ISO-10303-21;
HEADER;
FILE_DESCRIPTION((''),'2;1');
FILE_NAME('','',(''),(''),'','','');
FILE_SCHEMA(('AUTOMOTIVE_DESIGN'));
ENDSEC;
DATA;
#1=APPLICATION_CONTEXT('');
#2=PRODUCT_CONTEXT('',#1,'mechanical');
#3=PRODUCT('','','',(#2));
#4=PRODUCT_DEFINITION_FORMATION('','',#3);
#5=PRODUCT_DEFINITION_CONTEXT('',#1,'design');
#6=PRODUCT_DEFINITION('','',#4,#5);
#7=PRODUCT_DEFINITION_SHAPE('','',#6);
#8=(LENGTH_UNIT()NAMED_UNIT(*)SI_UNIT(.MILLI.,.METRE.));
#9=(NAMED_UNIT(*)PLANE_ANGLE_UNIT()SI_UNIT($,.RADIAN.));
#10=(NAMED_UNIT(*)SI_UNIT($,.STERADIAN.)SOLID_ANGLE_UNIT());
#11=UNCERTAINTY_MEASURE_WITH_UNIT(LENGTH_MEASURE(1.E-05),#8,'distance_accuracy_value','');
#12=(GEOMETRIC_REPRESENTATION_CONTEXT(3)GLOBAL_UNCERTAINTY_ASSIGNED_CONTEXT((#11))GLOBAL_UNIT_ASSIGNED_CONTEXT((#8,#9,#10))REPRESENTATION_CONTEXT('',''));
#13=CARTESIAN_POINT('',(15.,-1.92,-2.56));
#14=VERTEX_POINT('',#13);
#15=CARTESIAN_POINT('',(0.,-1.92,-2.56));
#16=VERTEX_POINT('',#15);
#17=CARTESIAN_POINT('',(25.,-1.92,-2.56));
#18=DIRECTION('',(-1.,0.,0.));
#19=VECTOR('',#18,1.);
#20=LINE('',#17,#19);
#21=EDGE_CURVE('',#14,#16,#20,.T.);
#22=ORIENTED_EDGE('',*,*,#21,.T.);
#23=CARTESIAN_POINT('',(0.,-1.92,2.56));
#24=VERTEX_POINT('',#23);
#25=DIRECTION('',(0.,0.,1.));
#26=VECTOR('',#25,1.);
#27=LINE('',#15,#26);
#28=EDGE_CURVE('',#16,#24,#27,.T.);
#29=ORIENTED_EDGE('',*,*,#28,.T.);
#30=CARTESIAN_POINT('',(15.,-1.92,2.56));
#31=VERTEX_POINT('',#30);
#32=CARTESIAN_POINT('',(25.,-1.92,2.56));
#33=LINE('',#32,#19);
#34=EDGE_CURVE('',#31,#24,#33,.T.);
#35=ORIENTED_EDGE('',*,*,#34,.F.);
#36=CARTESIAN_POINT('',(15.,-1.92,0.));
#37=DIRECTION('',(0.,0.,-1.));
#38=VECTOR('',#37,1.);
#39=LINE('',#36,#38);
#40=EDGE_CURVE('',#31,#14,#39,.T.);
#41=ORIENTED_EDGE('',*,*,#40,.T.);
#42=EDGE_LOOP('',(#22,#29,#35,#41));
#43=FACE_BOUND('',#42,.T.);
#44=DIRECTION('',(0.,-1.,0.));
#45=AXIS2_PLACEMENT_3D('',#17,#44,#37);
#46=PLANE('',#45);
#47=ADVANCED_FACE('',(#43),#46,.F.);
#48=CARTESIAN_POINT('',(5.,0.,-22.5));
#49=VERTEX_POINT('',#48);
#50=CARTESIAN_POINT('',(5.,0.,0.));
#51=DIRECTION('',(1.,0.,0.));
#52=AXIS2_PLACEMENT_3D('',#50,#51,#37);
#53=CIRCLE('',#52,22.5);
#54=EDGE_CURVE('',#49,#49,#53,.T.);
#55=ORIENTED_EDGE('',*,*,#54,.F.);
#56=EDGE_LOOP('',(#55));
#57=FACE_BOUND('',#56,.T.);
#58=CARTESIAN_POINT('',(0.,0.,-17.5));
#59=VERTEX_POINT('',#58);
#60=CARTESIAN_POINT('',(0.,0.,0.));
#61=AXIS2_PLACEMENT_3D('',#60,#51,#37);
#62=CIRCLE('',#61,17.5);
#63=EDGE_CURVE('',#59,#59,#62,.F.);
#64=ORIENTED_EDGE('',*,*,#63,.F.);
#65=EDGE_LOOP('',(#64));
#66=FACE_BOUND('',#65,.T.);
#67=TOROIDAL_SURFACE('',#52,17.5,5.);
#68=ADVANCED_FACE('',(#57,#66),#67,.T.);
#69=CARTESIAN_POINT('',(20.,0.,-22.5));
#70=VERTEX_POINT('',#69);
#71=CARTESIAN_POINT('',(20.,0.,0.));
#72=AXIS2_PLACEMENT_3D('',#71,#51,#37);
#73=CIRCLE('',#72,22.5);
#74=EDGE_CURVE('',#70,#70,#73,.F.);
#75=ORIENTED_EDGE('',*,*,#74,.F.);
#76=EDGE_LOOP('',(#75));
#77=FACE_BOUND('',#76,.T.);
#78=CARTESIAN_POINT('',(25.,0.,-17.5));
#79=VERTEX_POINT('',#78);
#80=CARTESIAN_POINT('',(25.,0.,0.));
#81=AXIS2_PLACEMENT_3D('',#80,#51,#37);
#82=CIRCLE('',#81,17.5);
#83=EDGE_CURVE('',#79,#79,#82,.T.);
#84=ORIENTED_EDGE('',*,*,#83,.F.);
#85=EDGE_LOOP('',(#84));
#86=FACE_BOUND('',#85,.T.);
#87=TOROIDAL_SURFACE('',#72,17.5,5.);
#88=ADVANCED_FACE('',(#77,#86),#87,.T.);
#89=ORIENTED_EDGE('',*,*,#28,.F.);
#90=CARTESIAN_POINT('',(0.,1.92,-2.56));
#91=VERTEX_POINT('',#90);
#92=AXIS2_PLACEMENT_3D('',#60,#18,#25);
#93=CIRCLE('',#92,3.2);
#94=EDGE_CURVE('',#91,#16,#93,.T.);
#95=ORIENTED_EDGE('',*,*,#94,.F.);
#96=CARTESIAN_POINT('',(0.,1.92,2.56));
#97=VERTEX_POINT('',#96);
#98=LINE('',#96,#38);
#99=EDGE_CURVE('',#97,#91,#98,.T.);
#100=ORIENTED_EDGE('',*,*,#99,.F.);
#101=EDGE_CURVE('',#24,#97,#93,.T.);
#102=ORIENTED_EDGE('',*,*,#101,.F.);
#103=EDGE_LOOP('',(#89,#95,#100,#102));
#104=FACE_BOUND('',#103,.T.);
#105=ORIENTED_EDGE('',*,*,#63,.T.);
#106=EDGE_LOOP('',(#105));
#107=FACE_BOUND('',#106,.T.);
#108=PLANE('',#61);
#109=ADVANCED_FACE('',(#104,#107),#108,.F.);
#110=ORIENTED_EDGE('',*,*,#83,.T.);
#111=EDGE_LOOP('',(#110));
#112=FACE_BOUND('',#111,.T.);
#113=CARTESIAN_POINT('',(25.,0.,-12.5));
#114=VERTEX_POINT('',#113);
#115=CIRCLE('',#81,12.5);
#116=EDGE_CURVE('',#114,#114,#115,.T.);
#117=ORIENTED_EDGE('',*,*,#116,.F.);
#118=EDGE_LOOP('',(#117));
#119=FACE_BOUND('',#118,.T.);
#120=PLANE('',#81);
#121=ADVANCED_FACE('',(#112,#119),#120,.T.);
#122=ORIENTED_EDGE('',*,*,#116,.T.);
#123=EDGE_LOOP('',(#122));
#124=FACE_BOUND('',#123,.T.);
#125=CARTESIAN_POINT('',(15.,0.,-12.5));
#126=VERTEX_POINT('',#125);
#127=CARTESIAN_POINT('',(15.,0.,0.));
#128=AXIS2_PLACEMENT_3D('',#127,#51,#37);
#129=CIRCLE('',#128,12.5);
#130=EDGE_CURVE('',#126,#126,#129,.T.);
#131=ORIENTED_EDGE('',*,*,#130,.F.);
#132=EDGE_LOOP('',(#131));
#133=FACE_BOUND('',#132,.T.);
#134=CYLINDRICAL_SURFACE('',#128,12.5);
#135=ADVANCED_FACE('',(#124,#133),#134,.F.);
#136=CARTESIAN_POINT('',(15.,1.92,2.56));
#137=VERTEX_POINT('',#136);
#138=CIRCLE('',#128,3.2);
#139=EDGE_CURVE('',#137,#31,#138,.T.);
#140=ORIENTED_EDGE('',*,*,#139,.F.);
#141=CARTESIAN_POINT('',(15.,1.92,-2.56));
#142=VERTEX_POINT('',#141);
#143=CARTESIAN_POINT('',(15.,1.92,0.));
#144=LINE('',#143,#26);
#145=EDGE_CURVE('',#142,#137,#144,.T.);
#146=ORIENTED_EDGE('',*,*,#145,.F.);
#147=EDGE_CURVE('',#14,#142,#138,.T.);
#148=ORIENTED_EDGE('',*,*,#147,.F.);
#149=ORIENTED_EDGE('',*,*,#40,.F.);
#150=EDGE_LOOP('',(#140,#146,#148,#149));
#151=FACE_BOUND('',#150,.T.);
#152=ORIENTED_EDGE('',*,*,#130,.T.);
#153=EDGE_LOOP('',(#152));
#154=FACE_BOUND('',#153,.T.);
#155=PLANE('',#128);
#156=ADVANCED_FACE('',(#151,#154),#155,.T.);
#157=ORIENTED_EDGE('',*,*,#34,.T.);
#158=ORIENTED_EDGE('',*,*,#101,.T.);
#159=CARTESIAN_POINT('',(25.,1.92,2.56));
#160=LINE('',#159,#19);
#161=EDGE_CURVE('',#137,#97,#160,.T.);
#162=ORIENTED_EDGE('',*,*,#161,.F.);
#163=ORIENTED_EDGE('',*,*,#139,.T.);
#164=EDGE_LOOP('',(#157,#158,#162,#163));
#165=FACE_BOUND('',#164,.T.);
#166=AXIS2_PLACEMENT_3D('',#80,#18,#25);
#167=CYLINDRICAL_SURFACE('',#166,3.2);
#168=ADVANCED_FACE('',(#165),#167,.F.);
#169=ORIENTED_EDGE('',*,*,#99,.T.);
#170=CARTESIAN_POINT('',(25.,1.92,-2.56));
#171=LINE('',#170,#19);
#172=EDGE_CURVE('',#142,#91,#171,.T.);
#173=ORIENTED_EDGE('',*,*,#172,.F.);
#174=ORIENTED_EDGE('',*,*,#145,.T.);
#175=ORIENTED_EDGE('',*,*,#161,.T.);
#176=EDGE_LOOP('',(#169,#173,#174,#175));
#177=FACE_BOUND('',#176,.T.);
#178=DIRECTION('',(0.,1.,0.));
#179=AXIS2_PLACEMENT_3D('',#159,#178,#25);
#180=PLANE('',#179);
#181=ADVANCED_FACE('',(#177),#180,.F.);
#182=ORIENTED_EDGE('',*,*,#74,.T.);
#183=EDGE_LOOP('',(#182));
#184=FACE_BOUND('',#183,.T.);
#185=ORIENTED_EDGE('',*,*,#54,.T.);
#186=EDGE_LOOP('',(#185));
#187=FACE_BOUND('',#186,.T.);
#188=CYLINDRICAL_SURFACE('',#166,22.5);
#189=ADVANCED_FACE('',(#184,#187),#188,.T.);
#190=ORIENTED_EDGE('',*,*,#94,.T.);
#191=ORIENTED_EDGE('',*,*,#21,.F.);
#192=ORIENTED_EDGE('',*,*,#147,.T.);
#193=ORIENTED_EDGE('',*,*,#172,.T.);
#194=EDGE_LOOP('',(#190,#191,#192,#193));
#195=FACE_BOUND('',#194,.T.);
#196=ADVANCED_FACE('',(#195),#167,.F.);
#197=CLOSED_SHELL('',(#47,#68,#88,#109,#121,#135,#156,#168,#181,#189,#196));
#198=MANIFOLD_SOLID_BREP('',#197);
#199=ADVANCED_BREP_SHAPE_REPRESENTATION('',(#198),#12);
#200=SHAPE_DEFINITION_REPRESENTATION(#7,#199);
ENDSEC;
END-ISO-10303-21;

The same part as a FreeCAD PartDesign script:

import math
import FreeCAD as App
import Part
import Sketcher
Q = App.Units.Quantity


def edges_at(feature, points):
    """Names of the edges that pass closest to the given points."""
    edges = feature.Shape.Edges
    near = lambda p: min(range(len(edges)), key=lambda i: edges[i].distToShape(Part.Vertex(*p))[0])
    return sorted({f"Edge{near(p) + 1}" for p in points})

doc = App.newDocument("Part")
params = doc.addObject("Spreadsheet::Sheet", "Params")
for row, (alias, value) in enumerate([
    ("sketch1_diameter", "45 mm"),
    ("pad1_length", "25 mm"),
    ("sketch2_diameter", "25 mm"),
    ("pocket1_length", "10 mm"),
    ("fillet_radius", "5 mm"),
    ("sketch3_diameter", "3 mm"),
    ("sketch4_radius", "3.2 mm"),
    ("sketch4_height", "5.12 mm"),
], start=1):
    params.set(f"A{row}", alias)
    params.set(f"B{row}", "=" + value)
    params.setAlias(f"B{row}", alias)

body = doc.addObject("PartDesign::Body", "Body")

sketch1 = body.newObject("Sketcher::SketchObject", "Sketch")
sketch1.AttachmentSupport = (doc.getObject("YZ_Plane"), [""])
sketch1.MapMode = "FlatFace"
sketch1.addGeometry(Part.Circle(App.Vector(0, 0, 0), App.Vector(0, 0, 1), 22), False)
sketch1.addConstraint([
    Sketcher.Constraint("Coincident", 0, 3, -1, 1),
    Sketcher.Constraint("Diameter", 0, Q("45 mm")),
])
sketch1.setExpression("Constraints[1]", "Params.sketch1_diameter")
pad1 = body.newObject("PartDesign::Pad", "Pad")
pad1.Profile = sketch1
pad1.setExpression("Length", "Params.pad1_length")

sketch2 = body.newObject("Sketcher::SketchObject", "Sketch001")
sketch2.AttachmentSupport = (doc.getObject("YZ_Plane"), [""])
sketch2.MapMode = "FlatFace"
sketch2.AttachmentOffset = App.Placement(App.Vector(0, 0, 25), App.Rotation())
sketch2.addGeometry(Part.Circle(App.Vector(0, 0, 0), App.Vector(0, 0, 1), 12), False)
sketch2.addConstraint([
    Sketcher.Constraint("Coincident", 0, 3, -1, 1),
    Sketcher.Constraint("Diameter", 0, Q("25 mm")),
])
sketch2.setExpression("Constraints[1]", "Params.sketch2_diameter")
pocket1 = body.newObject("PartDesign::Pocket", "Pocket")
pocket1.Profile = sketch2
pocket1.setExpression("Length", "Params.pocket1_length")
doc.recompute()

fillet = body.newObject("PartDesign::Fillet", "Fillet")
fillet.Base = (pocket1, edges_at(pocket1, [(0, 0, 22.5), (25, 0, 22.5)]))
fillet.setExpression("Radius", "Params.fillet_radius")

sketch3 = body.newObject("Sketcher::SketchObject", "Sketch002")
sketch3.AttachmentSupport = (doc.getObject("YZ_Plane"), [""])
sketch3.MapMode = "FlatFace"
sketch3.addGeometry(Part.Circle(App.Vector(0, 0, 0), App.Vector(0, 0, 1), 1.5), False)
sketch3.addConstraint([
    Sketcher.Constraint("Coincident", 0, 3, -1, 1),
    Sketcher.Constraint("Diameter", 0, Q("3 mm")),
])
sketch3.setExpression("Constraints[1]", "Params.sketch3_diameter")
pocket2 = body.newObject("PartDesign::Pocket", "Pocket001")
pocket2.Profile = sketch3
pocket2.Type = "ThroughAll"
pocket2.Reversed = True

sketch4 = body.newObject("Sketcher::SketchObject", "Sketch003")
sketch4.AttachmentSupport = (doc.getObject("YZ_Plane"), [""])
sketch4.MapMode = "FlatFace"
sketch4.addGeometry([
    Part.LineSegment(App.Vector(-1.9, -2.6, 0), App.Vector(-1.9, 2.6, 0)),
    Part.ArcOfCircle(Part.Circle(App.Vector(0, 0, 0), App.Vector(0, 0, 1), 3.2), math.radians(53), math.radians(127)),
    Part.LineSegment(App.Vector(1.9, 2.6, 0), App.Vector(1.9, -2.6, 0)),
    Part.ArcOfCircle(Part.Circle(App.Vector(0, 0, 0), App.Vector(0, 0, 1), 3.2), math.radians(-127), math.radians(-53)),
], False)
sketch4.addConstraint([
    Sketcher.Constraint("Coincident", 0, 2, 1, 2),
    Sketcher.Constraint("Coincident", 1, 1, 2, 1),
    Sketcher.Constraint("Coincident", 2, 2, 3, 2),
    Sketcher.Constraint("Coincident", 3, 1, 0, 1),
    Sketcher.Constraint("Vertical", 0),
    Sketcher.Constraint("Vertical", 2),
    Sketcher.Constraint("Coincident", 1, 3, -1, 1),
    Sketcher.Constraint("Coincident", 3, 3, -1, 1),
    Sketcher.Constraint("Equal", 1, 3),
    Sketcher.Constraint("Horizontal", 0, 2, 1, 1),
    Sketcher.Constraint("Radius", 1, Q("3.2 mm")),
    Sketcher.Constraint("DistanceY", 0, 1, 0, 2, Q("5.12 mm")),
])
sketch4.setExpression("Constraints[10]", "Params.sketch4_radius")
sketch4.setExpression("Constraints[11]", "Params.sketch4_height")
pocket3 = body.newObject("PartDesign::Pocket", "Pocket002")
pocket3.Profile = sketch4
pocket3.Type = "ThroughAll"
pocket3.Reversed = True

doc.recompute()
